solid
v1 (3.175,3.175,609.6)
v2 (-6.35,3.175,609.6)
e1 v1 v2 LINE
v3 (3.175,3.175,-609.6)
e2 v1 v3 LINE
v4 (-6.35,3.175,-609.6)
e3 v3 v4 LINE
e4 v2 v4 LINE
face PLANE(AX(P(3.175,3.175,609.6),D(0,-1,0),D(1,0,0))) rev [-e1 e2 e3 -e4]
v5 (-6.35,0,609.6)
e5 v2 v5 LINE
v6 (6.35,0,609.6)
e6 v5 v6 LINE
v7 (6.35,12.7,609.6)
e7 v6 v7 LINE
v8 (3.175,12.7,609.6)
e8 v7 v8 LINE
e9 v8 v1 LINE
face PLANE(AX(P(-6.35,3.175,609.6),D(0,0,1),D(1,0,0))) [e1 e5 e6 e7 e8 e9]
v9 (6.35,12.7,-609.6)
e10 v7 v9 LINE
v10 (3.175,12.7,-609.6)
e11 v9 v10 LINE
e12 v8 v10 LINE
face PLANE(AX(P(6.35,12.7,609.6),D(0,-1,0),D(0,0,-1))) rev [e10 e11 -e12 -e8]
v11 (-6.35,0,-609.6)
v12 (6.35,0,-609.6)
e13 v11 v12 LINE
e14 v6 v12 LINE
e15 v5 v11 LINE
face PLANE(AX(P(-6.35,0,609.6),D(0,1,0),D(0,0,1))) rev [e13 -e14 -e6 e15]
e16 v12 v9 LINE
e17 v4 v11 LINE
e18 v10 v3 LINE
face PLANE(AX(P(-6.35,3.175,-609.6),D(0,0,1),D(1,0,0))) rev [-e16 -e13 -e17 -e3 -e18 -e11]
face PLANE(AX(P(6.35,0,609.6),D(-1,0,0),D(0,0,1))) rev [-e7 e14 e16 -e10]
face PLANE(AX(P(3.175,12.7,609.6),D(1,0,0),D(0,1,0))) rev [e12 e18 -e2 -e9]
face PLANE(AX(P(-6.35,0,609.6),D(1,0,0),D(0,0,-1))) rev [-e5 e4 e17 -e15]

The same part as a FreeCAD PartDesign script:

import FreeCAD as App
import Part
import Sketcher
Q = App.Units.Quantity


def add_polygon(sketch, points):
    """Adds a closed chain of lines whose ends are joined by coincident constraints."""
    first, n = sketch.GeometryCount, len(points)
    for a, b in zip(points, points[1:] + points[:1]):
        sketch.addGeometry(Part.LineSegment(App.Vector(*a, 0), App.Vector(*b, 0)), False)
    for i in range(n):
        sketch.addConstraint(Sketcher.Constraint("Coincident", first + i, 2, first + (i + 1) % n, 1))

doc = App.newDocument("Part")
body = doc.addObject("PartDesign::Body", "Body")

# Sketch on XY plane
sketch1 = body.newObject("Sketcher::SketchObject", "Sketch")
sketch1.AttachmentSupport = (doc.getObject("XY_Plane"), [""])
sketch1.MapMode = "FlatFace"
add_polygon(sketch1, [(-6.3, 0), (6.3, 0), (6.3, 12.7), (3.2, 12.7), (3.2, 3.2), (-6.3, 3.2)])  # lines 0-5
sketch1.addConstraint([
    Sketcher.Constraint("Horizontal", 0),
    Sketcher.Constraint("Vertical", 1),
    Sketcher.Constraint("Horizontal", 2),
    Sketcher.Constraint("Vertical", 3),
    Sketcher.Constraint("Horizontal", 4),
    Sketcher.Constraint("Vertical", 5),
    Sketcher.Constraint("Symmetric", 0, 2, 5, 2, -1, 1),
    Sketcher.Constraint("Equal", 0, 1),
    Sketcher.Constraint("Equal", 4, 3),
    Sketcher.Constraint("DistanceX", 0, 1, 0, 2, Q("0.5 in")),
    Sketcher.Constraint("DistanceX", 2, 2, 2, 1, Q("0.125 in")),
])
pad1 = body.newObject("PartDesign::Pad", "Pad")
pad1.Profile = sketch1
pad1.Length = Q("48 in")
pad1.Midplane = True

doc.recompute()
